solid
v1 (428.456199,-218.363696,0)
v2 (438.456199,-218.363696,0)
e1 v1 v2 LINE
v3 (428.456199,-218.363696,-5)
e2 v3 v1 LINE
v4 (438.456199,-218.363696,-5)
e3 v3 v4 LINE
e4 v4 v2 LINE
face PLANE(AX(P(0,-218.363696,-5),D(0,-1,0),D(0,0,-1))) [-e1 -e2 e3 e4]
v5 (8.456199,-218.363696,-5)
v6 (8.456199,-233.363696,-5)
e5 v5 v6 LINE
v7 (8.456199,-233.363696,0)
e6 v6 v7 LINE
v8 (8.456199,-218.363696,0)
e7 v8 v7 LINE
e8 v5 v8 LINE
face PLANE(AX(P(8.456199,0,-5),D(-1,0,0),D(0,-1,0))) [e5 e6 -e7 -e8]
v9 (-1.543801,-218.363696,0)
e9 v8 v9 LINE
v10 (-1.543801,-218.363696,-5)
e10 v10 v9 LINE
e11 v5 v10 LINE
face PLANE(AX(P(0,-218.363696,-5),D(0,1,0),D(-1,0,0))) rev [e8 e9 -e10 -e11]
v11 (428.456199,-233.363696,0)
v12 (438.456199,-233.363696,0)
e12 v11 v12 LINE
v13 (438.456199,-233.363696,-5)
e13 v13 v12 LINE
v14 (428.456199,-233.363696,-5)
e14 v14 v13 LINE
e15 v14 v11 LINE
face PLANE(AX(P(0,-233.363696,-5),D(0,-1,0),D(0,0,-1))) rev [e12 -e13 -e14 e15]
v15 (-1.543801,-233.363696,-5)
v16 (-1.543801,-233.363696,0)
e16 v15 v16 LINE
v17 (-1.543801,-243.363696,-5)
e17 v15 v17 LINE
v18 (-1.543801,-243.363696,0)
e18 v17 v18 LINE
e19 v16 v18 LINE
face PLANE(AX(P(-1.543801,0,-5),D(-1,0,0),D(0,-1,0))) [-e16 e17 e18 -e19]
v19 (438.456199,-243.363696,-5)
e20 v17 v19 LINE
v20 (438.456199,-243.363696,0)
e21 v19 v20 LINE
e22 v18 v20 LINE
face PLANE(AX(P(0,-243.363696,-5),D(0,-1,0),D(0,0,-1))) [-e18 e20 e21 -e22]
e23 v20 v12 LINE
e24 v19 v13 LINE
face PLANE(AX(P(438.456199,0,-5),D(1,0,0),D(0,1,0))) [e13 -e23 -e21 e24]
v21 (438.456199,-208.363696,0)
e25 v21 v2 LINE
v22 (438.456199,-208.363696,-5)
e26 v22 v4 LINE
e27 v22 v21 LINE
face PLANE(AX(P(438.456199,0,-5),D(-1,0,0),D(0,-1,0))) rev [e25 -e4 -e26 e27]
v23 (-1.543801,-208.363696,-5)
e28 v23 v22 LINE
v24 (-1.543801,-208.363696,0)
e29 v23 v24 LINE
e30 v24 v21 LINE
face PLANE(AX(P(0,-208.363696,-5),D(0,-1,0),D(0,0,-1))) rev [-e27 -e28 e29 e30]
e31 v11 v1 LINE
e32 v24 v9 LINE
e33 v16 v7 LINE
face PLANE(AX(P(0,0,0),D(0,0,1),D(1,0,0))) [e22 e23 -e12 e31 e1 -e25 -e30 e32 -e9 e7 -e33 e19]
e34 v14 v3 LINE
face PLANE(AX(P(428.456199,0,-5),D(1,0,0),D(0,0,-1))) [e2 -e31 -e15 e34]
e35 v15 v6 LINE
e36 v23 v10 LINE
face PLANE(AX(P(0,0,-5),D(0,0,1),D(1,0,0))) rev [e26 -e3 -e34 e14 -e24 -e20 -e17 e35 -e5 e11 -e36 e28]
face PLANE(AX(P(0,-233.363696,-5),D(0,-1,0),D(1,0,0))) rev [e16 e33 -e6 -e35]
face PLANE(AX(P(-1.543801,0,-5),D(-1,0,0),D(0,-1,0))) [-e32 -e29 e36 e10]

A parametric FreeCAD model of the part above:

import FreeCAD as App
import Part
import Sketcher
Q = App.Units.Quantity

doc = App.newDocument("Part")
body = doc.addObject("PartDesign::Body", "Body")

# Sketch on XY plane
sketch1 = body.newObject("Sketcher::SketchObject", "Sketch")
sketch1.AttachmentSupport = (doc.getObject("XY_Plane"), [""])
sketch1.MapMode = "FlatFace"
sketch1.addGeometry([
    Part.LineSegment(App.Vector(8, -233, 0), App.Vector(-2, -233, 0)),  # 0
    Part.LineSegment(App.Vector(-2, -233, 0), App.Vector(-2, -243, 0)),  # 1
    Part.LineSegment(App.Vector(-2, -243, 0), App.Vector(438, -243, 0)),  # 2
    Part.LineSegment(App.Vector(438, -243, 0), App.Vector(438, -233, 0)),  # 3
    Part.LineSegment(App.Vector(438, -233, 0), App.Vector(428, -233, 0)),  # 4
    Part.LineSegment(App.Vector(428, -233, 0), App.Vector(428, -218, 0)),  # 5
    Part.LineSegment(App.Vector(428, -218, 0), App.Vector(438, -218, 0)),  # 6
    Part.LineSegment(App.Vector(438, -218, 0), App.Vector(438, -208, 0)),  # 7
    Part.LineSegment(App.Vector(438, -208, 0), App.Vector(-2, -208, 0)),  # 8
    Part.LineSegment(App.Vector(-2, -208, 0), App.Vector(-2, -218, 0)),  # 9
    Part.LineSegment(App.Vector(-2, -218, 0), App.Vector(8, -218, 0)),  # 10
    Part.LineSegment(App.Vector(8, -218, 0), App.Vector(8, -233, 0)),  # 11
], False)
sketch1.addConstraint([
    Sketcher.Constraint("Coincident", 0, 2, 1, 1),
    Sketcher.Constraint("Coincident", 1, 2, 2, 1),
    Sketcher.Constraint("Coincident", 2, 2, 3, 1),
    Sketcher.Constraint("Coincident", 3, 2, 4, 1),
    Sketcher.Constraint("Coincident", 4, 2, 5, 1),
    Sketcher.Constraint("Coincident", 5, 2, 6, 1),
    Sketcher.Constraint("Coincident", 6, 2, 7, 1),
    Sketcher.Constraint("Coincident", 7, 2, 8, 1),
    Sketcher.Constraint("Coincident", 8, 2, 9, 1),
    Sketcher.Constraint("Coincident", 9, 2, 10, 1),
    Sketcher.Constraint("Coincident", 10, 2, 11, 1),
    Sketcher.Constraint("Coincident", 11, 2, 0, 1),
    Sketcher.Constraint("Horizontal", 0),
    Sketcher.Constraint("Vertical", 1),
    Sketcher.Constraint("Horizontal", 2),
    Sketcher.Constraint("Vertical", 3),
    Sketcher.Constraint("Horizontal", 4),
    Sketcher.Constraint("Vertical", 5),
    Sketcher.Constraint("Horizontal", 6),
    Sketcher.Constraint("Vertical", 7),
    Sketcher.Constraint("Horizontal", 8),
    Sketcher.Constraint("Vertical", 9),
    Sketcher.Constraint("Horizontal", 10),
    Sketcher.Constraint("Vertical", 11),
    Sketcher.Constraint("Horizontal", 0, 2, 3, 2),
    Sketcher.Constraint("Horizontal", 6, 2, 9, 2),
    Sketcher.Constraint("Vertical", 3, 2, 6, 2),
    Sketcher.Constraint("Vertical", 1, 2, 8, 2),
    Sketcher.Constraint("Equal", 0, 4),
    Sketcher.Constraint("Equal", 10, 1),
    Sketcher.Constraint("Equal", 3, 7),
    Sketcher.Constraint("DistanceX", 0, 2, 0, 1, Q("10 mm")),
    Sketcher.Constraint("DistanceX", 2, 1, 2, 2, Q("440 mm")),
    Sketcher.Constraint("DistanceY", 5, 1, 5, 2, Q("15 mm")),
    Sketcher.Constraint("DistanceX", 0, 2, -1, 1, Q("1.543801 mm")),
    Sketcher.Constraint("DistanceY", 0, 2, -1, 1, Q("233.363696 mm")),
])
pad1 = body.newObject("PartDesign::Pad", "Pad")
pad1.Profile = sketch1
pad1.Length = 5
pad1.Reversed = True

doc.recompute()
